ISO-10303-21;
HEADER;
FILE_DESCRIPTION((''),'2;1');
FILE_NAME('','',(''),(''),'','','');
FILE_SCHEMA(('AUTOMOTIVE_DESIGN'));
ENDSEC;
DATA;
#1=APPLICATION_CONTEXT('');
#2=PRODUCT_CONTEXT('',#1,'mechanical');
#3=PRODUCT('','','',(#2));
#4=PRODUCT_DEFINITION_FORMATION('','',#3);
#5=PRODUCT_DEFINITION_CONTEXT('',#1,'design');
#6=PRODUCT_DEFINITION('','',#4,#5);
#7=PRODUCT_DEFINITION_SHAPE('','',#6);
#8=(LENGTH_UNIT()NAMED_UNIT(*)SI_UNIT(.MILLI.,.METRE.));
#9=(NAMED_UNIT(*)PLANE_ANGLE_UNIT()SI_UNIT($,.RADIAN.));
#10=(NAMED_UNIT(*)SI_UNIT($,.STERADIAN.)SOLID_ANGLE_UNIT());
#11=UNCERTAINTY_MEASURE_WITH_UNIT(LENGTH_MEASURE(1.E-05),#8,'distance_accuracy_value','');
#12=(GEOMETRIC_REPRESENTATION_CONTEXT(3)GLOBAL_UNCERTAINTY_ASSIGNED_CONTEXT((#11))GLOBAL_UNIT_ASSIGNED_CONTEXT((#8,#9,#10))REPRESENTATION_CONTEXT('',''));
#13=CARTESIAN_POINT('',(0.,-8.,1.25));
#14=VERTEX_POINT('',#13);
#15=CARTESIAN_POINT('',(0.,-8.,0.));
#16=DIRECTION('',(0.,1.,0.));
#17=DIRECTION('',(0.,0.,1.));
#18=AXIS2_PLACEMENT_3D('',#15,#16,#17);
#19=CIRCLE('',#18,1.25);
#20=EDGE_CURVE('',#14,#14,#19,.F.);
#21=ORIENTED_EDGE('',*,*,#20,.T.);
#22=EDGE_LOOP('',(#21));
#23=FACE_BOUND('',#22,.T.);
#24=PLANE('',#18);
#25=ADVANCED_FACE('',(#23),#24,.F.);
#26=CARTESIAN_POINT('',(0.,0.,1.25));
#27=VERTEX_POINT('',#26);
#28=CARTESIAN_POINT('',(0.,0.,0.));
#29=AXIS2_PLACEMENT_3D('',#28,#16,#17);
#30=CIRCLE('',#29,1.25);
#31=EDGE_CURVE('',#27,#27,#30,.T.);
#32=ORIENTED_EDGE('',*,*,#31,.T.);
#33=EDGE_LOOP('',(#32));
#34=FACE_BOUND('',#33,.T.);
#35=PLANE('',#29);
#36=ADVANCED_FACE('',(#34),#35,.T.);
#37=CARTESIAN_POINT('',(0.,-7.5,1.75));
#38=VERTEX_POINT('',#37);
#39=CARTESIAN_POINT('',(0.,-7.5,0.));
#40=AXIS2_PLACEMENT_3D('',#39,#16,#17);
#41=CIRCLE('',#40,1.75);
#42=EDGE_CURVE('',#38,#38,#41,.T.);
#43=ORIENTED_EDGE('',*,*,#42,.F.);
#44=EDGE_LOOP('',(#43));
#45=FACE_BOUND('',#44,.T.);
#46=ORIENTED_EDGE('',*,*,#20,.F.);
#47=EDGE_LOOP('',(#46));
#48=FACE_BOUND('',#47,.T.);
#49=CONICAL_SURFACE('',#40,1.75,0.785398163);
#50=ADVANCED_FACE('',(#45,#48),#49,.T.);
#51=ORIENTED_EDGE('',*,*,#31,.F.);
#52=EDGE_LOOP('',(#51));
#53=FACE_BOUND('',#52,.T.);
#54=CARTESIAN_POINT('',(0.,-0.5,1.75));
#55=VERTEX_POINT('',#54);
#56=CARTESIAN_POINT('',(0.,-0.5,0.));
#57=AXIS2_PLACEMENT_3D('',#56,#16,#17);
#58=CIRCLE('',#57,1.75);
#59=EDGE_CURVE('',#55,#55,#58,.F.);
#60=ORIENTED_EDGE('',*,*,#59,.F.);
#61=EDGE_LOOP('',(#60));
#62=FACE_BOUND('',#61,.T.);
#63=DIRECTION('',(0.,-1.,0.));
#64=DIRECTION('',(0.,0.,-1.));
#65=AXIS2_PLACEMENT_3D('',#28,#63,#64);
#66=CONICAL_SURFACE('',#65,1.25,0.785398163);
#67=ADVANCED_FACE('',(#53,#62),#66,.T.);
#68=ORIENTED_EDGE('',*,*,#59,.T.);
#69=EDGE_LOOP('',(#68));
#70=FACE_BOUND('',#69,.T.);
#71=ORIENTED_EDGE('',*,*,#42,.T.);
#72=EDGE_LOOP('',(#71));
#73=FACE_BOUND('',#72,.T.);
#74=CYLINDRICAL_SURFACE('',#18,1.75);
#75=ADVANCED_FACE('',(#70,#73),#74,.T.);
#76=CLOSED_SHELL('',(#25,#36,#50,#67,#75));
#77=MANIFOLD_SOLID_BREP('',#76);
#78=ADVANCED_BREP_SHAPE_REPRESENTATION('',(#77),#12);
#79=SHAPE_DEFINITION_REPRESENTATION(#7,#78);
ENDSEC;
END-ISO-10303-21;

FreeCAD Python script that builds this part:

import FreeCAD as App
import Part
import Sketcher


def edges_at(feature, points):
    """Names of the edges that pass closest to the given points."""
    edges = feature.Shape.Edges
    near = lambda p: min(range(len(edges)), key=lambda i: edges[i].distToShape(Part.Vertex(*p))[0])
    return sorted({f"Edge{near(p) + 1}" for p in points})

doc = App.newDocument("Part")
body = doc.addObject("PartDesign::Body", "Body")

# Sketch on XZ plane
sketch1 = body.newObject("Sketcher::SketchObject", "Sketch")
sketch1.AttachmentSupport = (doc.getObject("XZ_Plane"), [""])
sketch1.MapMode = "FlatFace"
sketch1.addGeometry(Part.Circle(App.Vector(0, 0, 0), App.Vector(0, 0, 1), 1.75), False)
sketch1.addConstraint([
    Sketcher.Constraint("Coincident", 0, 3, -1, 1),
    Sketcher.Constraint("Diameter", 0, 3.5),
])
pad1 = body.newObject("PartDesign::Pad", "Pad")
pad1.Profile = sketch1
pad1.Length = 8
doc.recompute()

chamfer = body.newObject("PartDesign::Chamfer", "Chamfer")
chamfer.Base = (pad1, edges_at(pad1, [(0, 0, -1.75), (0, -8, -1.75)]))
chamfer.Size = 0.5

doc.recompute()
